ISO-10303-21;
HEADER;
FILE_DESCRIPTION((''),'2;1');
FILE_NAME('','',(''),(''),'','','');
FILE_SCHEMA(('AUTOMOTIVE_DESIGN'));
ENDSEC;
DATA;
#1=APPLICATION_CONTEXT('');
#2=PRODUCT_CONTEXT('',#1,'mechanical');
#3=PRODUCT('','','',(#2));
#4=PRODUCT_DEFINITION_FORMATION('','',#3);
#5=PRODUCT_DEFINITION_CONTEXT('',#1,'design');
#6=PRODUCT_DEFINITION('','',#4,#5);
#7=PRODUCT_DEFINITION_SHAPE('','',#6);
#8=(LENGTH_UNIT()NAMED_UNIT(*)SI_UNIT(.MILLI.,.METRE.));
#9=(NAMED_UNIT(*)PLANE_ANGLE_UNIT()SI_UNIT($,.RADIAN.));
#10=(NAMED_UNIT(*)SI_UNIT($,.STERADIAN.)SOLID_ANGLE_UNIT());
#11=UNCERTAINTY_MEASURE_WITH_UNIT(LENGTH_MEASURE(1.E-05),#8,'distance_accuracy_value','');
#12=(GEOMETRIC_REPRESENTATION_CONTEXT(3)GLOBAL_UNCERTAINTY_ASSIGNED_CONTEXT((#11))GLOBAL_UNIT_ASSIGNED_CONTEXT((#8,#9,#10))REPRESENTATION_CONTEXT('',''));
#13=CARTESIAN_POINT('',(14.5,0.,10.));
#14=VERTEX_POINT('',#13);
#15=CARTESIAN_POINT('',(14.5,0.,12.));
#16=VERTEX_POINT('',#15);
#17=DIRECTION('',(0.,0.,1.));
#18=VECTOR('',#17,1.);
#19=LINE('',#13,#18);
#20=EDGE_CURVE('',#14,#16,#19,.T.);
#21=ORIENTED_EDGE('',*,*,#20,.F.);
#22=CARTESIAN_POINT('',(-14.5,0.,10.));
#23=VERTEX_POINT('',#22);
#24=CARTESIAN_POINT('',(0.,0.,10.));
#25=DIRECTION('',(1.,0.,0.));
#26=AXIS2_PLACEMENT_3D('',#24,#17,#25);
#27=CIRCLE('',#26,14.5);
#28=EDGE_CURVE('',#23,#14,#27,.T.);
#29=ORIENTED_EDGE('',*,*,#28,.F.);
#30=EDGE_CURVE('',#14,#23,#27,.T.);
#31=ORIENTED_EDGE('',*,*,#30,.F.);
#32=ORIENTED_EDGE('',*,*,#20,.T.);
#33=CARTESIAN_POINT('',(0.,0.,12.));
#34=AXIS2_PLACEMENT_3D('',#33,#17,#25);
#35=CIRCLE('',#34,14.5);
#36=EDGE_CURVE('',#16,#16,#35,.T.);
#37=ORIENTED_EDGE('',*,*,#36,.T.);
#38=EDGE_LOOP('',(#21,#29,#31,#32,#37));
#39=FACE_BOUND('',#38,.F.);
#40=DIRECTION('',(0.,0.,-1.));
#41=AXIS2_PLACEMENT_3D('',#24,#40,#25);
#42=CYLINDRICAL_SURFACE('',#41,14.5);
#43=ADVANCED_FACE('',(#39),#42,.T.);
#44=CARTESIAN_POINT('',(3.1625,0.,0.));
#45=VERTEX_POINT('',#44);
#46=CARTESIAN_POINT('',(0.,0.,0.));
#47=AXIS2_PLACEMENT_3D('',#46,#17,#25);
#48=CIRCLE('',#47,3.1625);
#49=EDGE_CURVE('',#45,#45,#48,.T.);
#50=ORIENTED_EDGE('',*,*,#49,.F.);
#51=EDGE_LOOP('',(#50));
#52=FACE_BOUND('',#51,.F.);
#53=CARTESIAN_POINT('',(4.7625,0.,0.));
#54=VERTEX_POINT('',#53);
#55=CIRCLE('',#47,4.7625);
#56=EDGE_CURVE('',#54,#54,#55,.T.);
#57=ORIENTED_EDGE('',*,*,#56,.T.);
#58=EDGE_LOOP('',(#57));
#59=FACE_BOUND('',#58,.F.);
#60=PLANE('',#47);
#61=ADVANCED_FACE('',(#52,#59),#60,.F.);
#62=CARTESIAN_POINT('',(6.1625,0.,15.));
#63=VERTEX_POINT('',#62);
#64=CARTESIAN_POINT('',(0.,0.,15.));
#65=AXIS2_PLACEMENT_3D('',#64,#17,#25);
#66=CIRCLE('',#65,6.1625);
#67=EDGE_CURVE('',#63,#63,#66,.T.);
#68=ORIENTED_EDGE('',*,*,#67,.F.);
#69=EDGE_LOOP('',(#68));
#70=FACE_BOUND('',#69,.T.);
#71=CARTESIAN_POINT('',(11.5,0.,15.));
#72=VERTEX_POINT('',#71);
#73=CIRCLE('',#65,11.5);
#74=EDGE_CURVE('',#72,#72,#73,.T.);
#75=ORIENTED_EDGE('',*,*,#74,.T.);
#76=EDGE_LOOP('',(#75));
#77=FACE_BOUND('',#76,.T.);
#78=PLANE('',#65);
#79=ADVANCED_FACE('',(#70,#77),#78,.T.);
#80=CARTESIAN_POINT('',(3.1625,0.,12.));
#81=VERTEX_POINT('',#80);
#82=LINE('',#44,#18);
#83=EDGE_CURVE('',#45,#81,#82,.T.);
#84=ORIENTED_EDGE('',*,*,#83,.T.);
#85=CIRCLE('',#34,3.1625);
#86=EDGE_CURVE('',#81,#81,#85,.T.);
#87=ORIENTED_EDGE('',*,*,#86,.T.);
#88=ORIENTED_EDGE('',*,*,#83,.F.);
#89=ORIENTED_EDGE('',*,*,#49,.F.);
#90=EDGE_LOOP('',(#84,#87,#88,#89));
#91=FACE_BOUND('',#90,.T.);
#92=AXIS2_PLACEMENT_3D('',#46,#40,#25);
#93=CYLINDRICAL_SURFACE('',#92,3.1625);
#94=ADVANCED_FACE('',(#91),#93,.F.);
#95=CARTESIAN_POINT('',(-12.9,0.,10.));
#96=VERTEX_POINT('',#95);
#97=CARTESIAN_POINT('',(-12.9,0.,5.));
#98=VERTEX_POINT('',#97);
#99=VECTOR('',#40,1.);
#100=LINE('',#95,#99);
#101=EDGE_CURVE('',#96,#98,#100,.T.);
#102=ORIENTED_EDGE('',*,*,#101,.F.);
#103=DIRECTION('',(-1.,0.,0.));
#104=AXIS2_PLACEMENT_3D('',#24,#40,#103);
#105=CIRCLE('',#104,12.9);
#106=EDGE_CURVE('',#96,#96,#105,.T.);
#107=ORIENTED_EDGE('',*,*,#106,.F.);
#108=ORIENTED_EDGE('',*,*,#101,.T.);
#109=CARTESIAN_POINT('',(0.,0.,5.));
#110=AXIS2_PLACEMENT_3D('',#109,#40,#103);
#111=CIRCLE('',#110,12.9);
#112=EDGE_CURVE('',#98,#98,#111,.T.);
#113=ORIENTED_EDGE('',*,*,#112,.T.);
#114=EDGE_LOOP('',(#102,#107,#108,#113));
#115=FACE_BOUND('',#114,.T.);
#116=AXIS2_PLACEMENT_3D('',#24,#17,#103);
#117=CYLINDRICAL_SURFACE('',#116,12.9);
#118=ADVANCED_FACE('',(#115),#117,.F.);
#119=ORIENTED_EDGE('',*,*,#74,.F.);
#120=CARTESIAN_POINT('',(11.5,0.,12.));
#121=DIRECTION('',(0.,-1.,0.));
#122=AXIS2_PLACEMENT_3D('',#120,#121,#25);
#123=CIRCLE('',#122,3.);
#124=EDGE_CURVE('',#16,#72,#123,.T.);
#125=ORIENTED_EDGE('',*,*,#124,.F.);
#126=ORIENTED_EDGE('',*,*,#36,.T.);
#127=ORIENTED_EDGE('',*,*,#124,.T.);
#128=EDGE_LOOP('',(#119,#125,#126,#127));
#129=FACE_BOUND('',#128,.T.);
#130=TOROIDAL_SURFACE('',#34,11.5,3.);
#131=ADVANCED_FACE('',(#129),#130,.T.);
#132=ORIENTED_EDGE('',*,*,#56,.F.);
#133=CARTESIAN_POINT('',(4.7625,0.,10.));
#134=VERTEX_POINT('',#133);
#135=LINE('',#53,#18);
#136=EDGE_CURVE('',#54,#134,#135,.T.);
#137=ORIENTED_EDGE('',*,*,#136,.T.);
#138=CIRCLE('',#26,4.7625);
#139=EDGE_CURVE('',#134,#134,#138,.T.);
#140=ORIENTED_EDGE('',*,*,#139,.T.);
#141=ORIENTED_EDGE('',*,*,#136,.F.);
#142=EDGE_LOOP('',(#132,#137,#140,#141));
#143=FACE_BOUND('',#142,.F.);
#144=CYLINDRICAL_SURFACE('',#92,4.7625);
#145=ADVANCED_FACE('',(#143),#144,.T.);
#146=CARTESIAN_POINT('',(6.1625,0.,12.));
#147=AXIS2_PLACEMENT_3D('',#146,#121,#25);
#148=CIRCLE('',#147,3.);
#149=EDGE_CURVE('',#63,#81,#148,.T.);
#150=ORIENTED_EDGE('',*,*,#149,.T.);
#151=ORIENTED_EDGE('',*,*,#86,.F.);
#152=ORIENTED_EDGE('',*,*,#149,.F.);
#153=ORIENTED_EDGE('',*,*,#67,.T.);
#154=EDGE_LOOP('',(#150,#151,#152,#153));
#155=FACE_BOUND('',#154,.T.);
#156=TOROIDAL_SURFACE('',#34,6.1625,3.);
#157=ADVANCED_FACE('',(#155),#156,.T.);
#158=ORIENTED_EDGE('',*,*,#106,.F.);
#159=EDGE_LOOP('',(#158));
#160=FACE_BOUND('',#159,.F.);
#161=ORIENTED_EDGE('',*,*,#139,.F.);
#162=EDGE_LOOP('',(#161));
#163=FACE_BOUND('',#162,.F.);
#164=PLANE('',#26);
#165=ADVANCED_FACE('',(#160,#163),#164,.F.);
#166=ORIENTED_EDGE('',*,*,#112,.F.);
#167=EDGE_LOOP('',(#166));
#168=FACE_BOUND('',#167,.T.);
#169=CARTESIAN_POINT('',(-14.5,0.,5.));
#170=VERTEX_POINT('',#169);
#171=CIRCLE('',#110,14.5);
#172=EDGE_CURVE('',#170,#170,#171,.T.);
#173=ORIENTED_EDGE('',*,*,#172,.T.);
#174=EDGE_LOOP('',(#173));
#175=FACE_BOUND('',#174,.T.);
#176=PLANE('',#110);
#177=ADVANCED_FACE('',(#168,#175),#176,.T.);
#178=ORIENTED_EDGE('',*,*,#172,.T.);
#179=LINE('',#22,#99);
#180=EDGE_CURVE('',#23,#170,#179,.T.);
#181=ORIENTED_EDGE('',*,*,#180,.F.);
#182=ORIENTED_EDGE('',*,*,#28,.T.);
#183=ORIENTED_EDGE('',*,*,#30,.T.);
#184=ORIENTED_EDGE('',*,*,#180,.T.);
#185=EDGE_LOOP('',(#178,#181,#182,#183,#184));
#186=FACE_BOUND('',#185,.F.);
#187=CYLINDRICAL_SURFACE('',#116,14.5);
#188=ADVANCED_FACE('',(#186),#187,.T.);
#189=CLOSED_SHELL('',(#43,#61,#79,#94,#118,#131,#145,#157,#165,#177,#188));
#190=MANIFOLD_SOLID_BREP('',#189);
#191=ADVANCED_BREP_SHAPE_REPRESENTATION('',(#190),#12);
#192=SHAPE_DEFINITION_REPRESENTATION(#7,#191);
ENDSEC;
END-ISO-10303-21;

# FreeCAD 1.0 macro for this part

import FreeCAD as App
import Part
import Sketcher

V = App.Vector
Q = App.Units.Quantity


def edges_at(feature, points):
    """Names of the edges that pass closest to the given points."""
    edges = feature.Shape.Edges
    near = lambda p: min(range(len(edges)), key=lambda i: edges[i].distToShape(Part.Vertex(*p))[0])
    return sorted({f"Edge{near(p) + 1}" for p in points})

doc = App.newDocument("Part")
body = doc.addObject("PartDesign::Body", "Body")

sketch1 = doc.addObject("Sketcher::SketchObject", "Sketch")
body.addObject(sketch1)
sketch1.AttachmentSupport = (doc.XY_Plane, [""])
sketch1.MapMode = "FlatFace"
sketch1.addGeometry(Part.Circle(V(0, 0, 0), V(0, 0, 1), 4.8), False)
sketch1.addGeometry(Part.Circle(V(0, 0, 0), V(0, 0, 1), 3.2), False)
sketch1.addConstraint(Sketcher.Constraint("Coincident", 0, 3, -1, 1))
sketch1.addConstraint(Sketcher.Constraint("Coincident", 1, 3, -1, 1))
sketch1.addConstraint(Sketcher.Constraint("Diameter", 0, Q("9.525 mm")))
sketch1.addConstraint(Sketcher.Constraint("Diameter", 1, Q("6.325 mm")))
pad1 = doc.addObject("PartDesign::Pad", "Pad")
body.addObject(pad1)
pad1.Profile = sketch1
pad1.Length = 10

sketch2 = doc.addObject("Sketcher::SketchObject", "Sketch001")
body.addObject(sketch2)
sketch2.AttachmentSupport = (doc.XY_Plane, [""])
sketch2.MapMode = "FlatFace"
sketch2.AttachmentOffset = App.Placement(V(0, 0, 10), App.Rotation())
sketch2.addGeometry(Part.Circle(V(0, 0, 0), V(0, 0, 1), 14.5), False)
sketch2.addGeometry(Part.Circle(V(0, 0, 0), V(0, 0, 1), 3.2), False)
sketch2.addConstraint(Sketcher.Constraint("Coincident", 0, 3, -1, 1))
sketch2.addConstraint(Sketcher.Constraint("Coincident", 1, 3, -1, 1))
sketch2.addConstraint(Sketcher.Constraint("Diameter", 0, Q("29 mm")))
sketch2.addConstraint(Sketcher.Constraint("Diameter", 1, Q("6.325 mm")))
pad2 = doc.addObject("PartDesign::Pad", "Pad001")
body.addObject(pad2)
pad2.Profile = sketch2
pad2.Length = 5

sketch3 = doc.addObject("Sketcher::SketchObject", "Sketch002")
body.addObject(sketch3)
sketch3.AttachmentSupport = (doc.XY_Plane, [""])
sketch3.MapMode = "FlatFace"
sketch3.AttachmentOffset = App.Placement(V(0, 0, 10), App.Rotation())
sketch3.addGeometry(Part.Circle(V(0, 0, 0), V(0, 0, 1), 14), False)
sketch3.addGeometry(Part.Circle(V(0, 0, 0), V(0, 0, 1), 13), False)
sketch3.addConstraint(Sketcher.Constraint("Coincident", 0, 3, -1, 1))
sketch3.addConstraint(Sketcher.Constraint("Coincident", 1, 3, -1, 1))
sketch3.addConstraint(Sketcher.Constraint("Diameter", 0, Q("29 mm")))
sketch3.addConstraint(Sketcher.Constraint("Diameter", 1, Q("25.8 mm")))
pad3 = doc.addObject("PartDesign::Pad", "Pad002")
body.addObject(pad3)
pad3.Profile = sketch3
pad3.Length = 5
pad3.Reversed = True
doc.recompute()

fillet = doc.addObject("PartDesign::Fillet", "Fillet")
body.addObject(fillet)
fillet.Base = (pad3, edges_at(pad3, [(-3.163, 0, 15), (-14.5, 0, 15)]))
fillet.Radius = 3

doc.recompute()
